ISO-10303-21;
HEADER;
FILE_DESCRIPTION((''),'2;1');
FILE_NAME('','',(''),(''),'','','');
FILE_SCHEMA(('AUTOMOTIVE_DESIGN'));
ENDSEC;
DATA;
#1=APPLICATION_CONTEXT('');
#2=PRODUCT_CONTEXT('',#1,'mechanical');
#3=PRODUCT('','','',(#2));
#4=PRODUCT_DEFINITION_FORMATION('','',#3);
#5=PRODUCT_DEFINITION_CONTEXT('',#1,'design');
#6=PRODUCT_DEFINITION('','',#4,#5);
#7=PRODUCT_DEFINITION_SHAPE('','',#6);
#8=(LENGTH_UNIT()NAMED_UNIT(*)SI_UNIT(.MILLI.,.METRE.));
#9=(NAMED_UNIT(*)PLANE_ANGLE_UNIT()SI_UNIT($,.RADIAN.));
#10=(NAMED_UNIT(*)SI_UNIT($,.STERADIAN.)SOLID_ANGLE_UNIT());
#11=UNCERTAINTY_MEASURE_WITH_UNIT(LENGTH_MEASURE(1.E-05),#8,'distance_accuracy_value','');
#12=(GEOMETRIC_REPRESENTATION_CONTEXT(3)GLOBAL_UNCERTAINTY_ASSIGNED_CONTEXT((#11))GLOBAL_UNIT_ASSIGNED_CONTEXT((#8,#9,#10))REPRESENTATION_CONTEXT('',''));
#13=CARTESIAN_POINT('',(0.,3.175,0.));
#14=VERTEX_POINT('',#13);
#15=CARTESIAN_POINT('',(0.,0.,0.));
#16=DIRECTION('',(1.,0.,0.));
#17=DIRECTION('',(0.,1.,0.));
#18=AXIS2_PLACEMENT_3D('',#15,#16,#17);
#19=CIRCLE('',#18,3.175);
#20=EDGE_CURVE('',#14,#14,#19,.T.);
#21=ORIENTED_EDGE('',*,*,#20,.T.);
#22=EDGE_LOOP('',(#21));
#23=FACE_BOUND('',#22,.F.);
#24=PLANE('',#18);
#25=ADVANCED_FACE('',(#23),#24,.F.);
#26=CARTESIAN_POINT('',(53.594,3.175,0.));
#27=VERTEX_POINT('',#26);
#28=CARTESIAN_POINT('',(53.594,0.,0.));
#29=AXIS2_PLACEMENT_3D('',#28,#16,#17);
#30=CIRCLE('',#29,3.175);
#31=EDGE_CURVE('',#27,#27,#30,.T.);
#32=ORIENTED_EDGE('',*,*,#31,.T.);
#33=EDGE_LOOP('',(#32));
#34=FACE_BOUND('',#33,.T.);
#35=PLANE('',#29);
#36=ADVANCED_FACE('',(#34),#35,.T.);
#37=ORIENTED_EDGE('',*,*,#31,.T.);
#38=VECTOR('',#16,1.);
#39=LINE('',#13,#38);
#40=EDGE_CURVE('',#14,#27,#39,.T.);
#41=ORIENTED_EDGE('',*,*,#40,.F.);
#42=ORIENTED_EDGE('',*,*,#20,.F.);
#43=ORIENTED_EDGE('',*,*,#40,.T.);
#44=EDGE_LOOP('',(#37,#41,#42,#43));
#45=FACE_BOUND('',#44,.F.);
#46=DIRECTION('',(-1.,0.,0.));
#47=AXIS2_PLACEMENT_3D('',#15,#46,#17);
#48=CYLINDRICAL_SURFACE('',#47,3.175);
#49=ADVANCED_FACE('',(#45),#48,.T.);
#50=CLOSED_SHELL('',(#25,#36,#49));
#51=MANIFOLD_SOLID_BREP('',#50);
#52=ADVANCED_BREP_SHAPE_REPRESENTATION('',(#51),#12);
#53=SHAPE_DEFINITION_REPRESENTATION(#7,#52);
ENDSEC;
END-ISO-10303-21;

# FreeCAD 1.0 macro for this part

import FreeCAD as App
import Part
import Sketcher
Q = App.Units.Quantity

doc = App.newDocument("Part")
params = doc.addObject("Spreadsheet::Sheet", "Params")
for row, (alias, value) in enumerate([
    ("sketch1_diameter", "0.25 in"),
    ("pad1_length", "2.11 in"),
], start=1):
    params.set(f"A{row}", alias)
    params.set(f"B{row}", "=" + value)
    params.setAlias(f"B{row}", alias)

body = doc.addObject("PartDesign::Body", "Body")

sketch1 = doc.addObject("Sketcher::SketchObject", "Sketch")
body.addObject(sketch1)
sketch1.AttachmentSupport = (doc.YZ_Plane, [""])
sketch1.MapMode = "FlatFace"
sketch1.addGeometry(Part.Circle(App.Vector(0, 0, 0), App.Vector(0, 0, 1), 3.2), False)
sketch1.addConstraint(Sketcher.Constraint("Coincident", 0, 3, -1, 1))
sketch1.addConstraint(Sketcher.Constraint("Diameter", 0, Q("0.25 in")))
sketch1.setExpression("Constraints[1]", "Params.sketch1_diameter")
pad1 = doc.addObject("PartDesign::Pad", "Pad")
body.addObject(pad1)
pad1.Profile = sketch1
pad1.setExpression("Length", "Params.pad1_length")

doc.recompute()
